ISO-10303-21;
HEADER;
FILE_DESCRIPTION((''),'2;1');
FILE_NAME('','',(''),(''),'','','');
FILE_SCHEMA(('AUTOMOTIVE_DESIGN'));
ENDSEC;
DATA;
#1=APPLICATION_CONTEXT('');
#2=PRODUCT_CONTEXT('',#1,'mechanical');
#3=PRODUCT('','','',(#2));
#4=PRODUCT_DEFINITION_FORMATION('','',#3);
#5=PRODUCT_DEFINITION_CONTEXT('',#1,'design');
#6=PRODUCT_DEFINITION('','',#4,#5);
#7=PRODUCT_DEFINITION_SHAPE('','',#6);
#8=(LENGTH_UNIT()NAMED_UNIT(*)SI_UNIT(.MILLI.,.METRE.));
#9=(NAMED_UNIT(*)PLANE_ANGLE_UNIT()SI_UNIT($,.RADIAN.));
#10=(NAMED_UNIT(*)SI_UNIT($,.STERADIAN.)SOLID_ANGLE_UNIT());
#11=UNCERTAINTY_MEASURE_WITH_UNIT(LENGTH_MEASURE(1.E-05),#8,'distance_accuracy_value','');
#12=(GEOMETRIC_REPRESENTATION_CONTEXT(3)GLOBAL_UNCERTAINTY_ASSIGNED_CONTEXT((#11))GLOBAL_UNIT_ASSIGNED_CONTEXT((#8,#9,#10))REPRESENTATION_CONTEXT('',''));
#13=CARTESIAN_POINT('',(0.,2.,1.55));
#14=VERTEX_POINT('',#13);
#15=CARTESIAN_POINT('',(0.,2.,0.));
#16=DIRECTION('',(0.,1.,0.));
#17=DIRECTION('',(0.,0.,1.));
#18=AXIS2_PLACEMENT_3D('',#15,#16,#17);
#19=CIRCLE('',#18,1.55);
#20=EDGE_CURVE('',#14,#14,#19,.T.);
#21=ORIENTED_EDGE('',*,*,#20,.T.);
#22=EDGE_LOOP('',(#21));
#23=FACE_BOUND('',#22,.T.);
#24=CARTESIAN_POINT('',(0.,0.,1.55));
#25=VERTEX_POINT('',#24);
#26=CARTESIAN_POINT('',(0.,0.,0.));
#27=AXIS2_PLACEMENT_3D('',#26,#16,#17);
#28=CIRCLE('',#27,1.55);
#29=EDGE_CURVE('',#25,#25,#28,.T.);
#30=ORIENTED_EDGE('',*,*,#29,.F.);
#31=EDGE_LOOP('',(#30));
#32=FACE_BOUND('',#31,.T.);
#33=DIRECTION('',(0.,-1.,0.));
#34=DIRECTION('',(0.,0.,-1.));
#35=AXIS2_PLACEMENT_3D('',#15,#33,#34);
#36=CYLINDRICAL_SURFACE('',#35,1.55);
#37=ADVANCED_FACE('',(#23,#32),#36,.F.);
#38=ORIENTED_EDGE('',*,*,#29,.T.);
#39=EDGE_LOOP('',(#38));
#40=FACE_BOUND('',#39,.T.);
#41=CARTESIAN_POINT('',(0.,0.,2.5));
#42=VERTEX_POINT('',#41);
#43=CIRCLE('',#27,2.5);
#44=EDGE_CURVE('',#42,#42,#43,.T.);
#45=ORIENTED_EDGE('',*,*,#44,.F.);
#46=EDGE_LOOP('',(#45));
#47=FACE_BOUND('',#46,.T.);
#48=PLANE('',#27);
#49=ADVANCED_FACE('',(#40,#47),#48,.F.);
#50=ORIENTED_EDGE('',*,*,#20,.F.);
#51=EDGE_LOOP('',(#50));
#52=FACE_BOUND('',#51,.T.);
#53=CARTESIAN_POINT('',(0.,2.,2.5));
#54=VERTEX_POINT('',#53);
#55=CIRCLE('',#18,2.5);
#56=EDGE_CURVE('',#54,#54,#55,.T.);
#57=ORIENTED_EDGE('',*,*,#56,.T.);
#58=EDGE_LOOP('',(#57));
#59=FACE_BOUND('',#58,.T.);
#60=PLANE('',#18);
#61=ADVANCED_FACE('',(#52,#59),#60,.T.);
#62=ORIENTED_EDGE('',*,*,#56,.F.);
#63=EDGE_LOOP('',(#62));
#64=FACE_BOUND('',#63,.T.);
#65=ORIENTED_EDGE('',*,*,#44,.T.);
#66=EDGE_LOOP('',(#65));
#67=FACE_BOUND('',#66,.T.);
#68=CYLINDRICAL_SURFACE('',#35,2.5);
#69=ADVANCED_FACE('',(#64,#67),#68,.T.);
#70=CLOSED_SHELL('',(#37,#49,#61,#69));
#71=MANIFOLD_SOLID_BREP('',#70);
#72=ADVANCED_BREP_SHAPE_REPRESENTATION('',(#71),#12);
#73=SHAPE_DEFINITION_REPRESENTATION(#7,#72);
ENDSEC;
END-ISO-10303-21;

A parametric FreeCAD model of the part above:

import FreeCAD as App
import Part
import Sketcher
from FreeCAD import Vector
Q = App.Units.Quantity

doc = App.newDocument("Part")
body = doc.addObject("PartDesign::Body", "Body")

# Sketch on XZ plane
sketch1 = body.newObject("Sketcher::SketchObject", "Sketch")
sketch1.AttachmentSupport = (doc.getObject("XZ_Plane"), [""])
sketch1.MapMode = "FlatFace"
sketch1.addGeometry(Part.Circle(Vector(0, 0, 0), Vector(0, 0, 1), 2.5), False)
sketch1.addGeometry(Part.Circle(Vector(0, 0, 0), Vector(0, 0, 1), 1.55), False)
sketch1.addConstraint(Sketcher.Constraint("Coincident", 0, 3, -1, 1))
sketch1.addConstraint(Sketcher.Constraint("Coincident", 1, 3, -1, 1))
sketch1.addConstraint(Sketcher.Constraint("Diameter", 0, Q("5 mm")))
sketch1.addConstraint(Sketcher.Constraint("Diameter", 1, Q("3.1 mm")))
pad1 = body.newObject("PartDesign::Pad", "Pad")
pad1.Profile = sketch1
pad1.Length = 2
pad1.Reversed = True

doc.recompute()
